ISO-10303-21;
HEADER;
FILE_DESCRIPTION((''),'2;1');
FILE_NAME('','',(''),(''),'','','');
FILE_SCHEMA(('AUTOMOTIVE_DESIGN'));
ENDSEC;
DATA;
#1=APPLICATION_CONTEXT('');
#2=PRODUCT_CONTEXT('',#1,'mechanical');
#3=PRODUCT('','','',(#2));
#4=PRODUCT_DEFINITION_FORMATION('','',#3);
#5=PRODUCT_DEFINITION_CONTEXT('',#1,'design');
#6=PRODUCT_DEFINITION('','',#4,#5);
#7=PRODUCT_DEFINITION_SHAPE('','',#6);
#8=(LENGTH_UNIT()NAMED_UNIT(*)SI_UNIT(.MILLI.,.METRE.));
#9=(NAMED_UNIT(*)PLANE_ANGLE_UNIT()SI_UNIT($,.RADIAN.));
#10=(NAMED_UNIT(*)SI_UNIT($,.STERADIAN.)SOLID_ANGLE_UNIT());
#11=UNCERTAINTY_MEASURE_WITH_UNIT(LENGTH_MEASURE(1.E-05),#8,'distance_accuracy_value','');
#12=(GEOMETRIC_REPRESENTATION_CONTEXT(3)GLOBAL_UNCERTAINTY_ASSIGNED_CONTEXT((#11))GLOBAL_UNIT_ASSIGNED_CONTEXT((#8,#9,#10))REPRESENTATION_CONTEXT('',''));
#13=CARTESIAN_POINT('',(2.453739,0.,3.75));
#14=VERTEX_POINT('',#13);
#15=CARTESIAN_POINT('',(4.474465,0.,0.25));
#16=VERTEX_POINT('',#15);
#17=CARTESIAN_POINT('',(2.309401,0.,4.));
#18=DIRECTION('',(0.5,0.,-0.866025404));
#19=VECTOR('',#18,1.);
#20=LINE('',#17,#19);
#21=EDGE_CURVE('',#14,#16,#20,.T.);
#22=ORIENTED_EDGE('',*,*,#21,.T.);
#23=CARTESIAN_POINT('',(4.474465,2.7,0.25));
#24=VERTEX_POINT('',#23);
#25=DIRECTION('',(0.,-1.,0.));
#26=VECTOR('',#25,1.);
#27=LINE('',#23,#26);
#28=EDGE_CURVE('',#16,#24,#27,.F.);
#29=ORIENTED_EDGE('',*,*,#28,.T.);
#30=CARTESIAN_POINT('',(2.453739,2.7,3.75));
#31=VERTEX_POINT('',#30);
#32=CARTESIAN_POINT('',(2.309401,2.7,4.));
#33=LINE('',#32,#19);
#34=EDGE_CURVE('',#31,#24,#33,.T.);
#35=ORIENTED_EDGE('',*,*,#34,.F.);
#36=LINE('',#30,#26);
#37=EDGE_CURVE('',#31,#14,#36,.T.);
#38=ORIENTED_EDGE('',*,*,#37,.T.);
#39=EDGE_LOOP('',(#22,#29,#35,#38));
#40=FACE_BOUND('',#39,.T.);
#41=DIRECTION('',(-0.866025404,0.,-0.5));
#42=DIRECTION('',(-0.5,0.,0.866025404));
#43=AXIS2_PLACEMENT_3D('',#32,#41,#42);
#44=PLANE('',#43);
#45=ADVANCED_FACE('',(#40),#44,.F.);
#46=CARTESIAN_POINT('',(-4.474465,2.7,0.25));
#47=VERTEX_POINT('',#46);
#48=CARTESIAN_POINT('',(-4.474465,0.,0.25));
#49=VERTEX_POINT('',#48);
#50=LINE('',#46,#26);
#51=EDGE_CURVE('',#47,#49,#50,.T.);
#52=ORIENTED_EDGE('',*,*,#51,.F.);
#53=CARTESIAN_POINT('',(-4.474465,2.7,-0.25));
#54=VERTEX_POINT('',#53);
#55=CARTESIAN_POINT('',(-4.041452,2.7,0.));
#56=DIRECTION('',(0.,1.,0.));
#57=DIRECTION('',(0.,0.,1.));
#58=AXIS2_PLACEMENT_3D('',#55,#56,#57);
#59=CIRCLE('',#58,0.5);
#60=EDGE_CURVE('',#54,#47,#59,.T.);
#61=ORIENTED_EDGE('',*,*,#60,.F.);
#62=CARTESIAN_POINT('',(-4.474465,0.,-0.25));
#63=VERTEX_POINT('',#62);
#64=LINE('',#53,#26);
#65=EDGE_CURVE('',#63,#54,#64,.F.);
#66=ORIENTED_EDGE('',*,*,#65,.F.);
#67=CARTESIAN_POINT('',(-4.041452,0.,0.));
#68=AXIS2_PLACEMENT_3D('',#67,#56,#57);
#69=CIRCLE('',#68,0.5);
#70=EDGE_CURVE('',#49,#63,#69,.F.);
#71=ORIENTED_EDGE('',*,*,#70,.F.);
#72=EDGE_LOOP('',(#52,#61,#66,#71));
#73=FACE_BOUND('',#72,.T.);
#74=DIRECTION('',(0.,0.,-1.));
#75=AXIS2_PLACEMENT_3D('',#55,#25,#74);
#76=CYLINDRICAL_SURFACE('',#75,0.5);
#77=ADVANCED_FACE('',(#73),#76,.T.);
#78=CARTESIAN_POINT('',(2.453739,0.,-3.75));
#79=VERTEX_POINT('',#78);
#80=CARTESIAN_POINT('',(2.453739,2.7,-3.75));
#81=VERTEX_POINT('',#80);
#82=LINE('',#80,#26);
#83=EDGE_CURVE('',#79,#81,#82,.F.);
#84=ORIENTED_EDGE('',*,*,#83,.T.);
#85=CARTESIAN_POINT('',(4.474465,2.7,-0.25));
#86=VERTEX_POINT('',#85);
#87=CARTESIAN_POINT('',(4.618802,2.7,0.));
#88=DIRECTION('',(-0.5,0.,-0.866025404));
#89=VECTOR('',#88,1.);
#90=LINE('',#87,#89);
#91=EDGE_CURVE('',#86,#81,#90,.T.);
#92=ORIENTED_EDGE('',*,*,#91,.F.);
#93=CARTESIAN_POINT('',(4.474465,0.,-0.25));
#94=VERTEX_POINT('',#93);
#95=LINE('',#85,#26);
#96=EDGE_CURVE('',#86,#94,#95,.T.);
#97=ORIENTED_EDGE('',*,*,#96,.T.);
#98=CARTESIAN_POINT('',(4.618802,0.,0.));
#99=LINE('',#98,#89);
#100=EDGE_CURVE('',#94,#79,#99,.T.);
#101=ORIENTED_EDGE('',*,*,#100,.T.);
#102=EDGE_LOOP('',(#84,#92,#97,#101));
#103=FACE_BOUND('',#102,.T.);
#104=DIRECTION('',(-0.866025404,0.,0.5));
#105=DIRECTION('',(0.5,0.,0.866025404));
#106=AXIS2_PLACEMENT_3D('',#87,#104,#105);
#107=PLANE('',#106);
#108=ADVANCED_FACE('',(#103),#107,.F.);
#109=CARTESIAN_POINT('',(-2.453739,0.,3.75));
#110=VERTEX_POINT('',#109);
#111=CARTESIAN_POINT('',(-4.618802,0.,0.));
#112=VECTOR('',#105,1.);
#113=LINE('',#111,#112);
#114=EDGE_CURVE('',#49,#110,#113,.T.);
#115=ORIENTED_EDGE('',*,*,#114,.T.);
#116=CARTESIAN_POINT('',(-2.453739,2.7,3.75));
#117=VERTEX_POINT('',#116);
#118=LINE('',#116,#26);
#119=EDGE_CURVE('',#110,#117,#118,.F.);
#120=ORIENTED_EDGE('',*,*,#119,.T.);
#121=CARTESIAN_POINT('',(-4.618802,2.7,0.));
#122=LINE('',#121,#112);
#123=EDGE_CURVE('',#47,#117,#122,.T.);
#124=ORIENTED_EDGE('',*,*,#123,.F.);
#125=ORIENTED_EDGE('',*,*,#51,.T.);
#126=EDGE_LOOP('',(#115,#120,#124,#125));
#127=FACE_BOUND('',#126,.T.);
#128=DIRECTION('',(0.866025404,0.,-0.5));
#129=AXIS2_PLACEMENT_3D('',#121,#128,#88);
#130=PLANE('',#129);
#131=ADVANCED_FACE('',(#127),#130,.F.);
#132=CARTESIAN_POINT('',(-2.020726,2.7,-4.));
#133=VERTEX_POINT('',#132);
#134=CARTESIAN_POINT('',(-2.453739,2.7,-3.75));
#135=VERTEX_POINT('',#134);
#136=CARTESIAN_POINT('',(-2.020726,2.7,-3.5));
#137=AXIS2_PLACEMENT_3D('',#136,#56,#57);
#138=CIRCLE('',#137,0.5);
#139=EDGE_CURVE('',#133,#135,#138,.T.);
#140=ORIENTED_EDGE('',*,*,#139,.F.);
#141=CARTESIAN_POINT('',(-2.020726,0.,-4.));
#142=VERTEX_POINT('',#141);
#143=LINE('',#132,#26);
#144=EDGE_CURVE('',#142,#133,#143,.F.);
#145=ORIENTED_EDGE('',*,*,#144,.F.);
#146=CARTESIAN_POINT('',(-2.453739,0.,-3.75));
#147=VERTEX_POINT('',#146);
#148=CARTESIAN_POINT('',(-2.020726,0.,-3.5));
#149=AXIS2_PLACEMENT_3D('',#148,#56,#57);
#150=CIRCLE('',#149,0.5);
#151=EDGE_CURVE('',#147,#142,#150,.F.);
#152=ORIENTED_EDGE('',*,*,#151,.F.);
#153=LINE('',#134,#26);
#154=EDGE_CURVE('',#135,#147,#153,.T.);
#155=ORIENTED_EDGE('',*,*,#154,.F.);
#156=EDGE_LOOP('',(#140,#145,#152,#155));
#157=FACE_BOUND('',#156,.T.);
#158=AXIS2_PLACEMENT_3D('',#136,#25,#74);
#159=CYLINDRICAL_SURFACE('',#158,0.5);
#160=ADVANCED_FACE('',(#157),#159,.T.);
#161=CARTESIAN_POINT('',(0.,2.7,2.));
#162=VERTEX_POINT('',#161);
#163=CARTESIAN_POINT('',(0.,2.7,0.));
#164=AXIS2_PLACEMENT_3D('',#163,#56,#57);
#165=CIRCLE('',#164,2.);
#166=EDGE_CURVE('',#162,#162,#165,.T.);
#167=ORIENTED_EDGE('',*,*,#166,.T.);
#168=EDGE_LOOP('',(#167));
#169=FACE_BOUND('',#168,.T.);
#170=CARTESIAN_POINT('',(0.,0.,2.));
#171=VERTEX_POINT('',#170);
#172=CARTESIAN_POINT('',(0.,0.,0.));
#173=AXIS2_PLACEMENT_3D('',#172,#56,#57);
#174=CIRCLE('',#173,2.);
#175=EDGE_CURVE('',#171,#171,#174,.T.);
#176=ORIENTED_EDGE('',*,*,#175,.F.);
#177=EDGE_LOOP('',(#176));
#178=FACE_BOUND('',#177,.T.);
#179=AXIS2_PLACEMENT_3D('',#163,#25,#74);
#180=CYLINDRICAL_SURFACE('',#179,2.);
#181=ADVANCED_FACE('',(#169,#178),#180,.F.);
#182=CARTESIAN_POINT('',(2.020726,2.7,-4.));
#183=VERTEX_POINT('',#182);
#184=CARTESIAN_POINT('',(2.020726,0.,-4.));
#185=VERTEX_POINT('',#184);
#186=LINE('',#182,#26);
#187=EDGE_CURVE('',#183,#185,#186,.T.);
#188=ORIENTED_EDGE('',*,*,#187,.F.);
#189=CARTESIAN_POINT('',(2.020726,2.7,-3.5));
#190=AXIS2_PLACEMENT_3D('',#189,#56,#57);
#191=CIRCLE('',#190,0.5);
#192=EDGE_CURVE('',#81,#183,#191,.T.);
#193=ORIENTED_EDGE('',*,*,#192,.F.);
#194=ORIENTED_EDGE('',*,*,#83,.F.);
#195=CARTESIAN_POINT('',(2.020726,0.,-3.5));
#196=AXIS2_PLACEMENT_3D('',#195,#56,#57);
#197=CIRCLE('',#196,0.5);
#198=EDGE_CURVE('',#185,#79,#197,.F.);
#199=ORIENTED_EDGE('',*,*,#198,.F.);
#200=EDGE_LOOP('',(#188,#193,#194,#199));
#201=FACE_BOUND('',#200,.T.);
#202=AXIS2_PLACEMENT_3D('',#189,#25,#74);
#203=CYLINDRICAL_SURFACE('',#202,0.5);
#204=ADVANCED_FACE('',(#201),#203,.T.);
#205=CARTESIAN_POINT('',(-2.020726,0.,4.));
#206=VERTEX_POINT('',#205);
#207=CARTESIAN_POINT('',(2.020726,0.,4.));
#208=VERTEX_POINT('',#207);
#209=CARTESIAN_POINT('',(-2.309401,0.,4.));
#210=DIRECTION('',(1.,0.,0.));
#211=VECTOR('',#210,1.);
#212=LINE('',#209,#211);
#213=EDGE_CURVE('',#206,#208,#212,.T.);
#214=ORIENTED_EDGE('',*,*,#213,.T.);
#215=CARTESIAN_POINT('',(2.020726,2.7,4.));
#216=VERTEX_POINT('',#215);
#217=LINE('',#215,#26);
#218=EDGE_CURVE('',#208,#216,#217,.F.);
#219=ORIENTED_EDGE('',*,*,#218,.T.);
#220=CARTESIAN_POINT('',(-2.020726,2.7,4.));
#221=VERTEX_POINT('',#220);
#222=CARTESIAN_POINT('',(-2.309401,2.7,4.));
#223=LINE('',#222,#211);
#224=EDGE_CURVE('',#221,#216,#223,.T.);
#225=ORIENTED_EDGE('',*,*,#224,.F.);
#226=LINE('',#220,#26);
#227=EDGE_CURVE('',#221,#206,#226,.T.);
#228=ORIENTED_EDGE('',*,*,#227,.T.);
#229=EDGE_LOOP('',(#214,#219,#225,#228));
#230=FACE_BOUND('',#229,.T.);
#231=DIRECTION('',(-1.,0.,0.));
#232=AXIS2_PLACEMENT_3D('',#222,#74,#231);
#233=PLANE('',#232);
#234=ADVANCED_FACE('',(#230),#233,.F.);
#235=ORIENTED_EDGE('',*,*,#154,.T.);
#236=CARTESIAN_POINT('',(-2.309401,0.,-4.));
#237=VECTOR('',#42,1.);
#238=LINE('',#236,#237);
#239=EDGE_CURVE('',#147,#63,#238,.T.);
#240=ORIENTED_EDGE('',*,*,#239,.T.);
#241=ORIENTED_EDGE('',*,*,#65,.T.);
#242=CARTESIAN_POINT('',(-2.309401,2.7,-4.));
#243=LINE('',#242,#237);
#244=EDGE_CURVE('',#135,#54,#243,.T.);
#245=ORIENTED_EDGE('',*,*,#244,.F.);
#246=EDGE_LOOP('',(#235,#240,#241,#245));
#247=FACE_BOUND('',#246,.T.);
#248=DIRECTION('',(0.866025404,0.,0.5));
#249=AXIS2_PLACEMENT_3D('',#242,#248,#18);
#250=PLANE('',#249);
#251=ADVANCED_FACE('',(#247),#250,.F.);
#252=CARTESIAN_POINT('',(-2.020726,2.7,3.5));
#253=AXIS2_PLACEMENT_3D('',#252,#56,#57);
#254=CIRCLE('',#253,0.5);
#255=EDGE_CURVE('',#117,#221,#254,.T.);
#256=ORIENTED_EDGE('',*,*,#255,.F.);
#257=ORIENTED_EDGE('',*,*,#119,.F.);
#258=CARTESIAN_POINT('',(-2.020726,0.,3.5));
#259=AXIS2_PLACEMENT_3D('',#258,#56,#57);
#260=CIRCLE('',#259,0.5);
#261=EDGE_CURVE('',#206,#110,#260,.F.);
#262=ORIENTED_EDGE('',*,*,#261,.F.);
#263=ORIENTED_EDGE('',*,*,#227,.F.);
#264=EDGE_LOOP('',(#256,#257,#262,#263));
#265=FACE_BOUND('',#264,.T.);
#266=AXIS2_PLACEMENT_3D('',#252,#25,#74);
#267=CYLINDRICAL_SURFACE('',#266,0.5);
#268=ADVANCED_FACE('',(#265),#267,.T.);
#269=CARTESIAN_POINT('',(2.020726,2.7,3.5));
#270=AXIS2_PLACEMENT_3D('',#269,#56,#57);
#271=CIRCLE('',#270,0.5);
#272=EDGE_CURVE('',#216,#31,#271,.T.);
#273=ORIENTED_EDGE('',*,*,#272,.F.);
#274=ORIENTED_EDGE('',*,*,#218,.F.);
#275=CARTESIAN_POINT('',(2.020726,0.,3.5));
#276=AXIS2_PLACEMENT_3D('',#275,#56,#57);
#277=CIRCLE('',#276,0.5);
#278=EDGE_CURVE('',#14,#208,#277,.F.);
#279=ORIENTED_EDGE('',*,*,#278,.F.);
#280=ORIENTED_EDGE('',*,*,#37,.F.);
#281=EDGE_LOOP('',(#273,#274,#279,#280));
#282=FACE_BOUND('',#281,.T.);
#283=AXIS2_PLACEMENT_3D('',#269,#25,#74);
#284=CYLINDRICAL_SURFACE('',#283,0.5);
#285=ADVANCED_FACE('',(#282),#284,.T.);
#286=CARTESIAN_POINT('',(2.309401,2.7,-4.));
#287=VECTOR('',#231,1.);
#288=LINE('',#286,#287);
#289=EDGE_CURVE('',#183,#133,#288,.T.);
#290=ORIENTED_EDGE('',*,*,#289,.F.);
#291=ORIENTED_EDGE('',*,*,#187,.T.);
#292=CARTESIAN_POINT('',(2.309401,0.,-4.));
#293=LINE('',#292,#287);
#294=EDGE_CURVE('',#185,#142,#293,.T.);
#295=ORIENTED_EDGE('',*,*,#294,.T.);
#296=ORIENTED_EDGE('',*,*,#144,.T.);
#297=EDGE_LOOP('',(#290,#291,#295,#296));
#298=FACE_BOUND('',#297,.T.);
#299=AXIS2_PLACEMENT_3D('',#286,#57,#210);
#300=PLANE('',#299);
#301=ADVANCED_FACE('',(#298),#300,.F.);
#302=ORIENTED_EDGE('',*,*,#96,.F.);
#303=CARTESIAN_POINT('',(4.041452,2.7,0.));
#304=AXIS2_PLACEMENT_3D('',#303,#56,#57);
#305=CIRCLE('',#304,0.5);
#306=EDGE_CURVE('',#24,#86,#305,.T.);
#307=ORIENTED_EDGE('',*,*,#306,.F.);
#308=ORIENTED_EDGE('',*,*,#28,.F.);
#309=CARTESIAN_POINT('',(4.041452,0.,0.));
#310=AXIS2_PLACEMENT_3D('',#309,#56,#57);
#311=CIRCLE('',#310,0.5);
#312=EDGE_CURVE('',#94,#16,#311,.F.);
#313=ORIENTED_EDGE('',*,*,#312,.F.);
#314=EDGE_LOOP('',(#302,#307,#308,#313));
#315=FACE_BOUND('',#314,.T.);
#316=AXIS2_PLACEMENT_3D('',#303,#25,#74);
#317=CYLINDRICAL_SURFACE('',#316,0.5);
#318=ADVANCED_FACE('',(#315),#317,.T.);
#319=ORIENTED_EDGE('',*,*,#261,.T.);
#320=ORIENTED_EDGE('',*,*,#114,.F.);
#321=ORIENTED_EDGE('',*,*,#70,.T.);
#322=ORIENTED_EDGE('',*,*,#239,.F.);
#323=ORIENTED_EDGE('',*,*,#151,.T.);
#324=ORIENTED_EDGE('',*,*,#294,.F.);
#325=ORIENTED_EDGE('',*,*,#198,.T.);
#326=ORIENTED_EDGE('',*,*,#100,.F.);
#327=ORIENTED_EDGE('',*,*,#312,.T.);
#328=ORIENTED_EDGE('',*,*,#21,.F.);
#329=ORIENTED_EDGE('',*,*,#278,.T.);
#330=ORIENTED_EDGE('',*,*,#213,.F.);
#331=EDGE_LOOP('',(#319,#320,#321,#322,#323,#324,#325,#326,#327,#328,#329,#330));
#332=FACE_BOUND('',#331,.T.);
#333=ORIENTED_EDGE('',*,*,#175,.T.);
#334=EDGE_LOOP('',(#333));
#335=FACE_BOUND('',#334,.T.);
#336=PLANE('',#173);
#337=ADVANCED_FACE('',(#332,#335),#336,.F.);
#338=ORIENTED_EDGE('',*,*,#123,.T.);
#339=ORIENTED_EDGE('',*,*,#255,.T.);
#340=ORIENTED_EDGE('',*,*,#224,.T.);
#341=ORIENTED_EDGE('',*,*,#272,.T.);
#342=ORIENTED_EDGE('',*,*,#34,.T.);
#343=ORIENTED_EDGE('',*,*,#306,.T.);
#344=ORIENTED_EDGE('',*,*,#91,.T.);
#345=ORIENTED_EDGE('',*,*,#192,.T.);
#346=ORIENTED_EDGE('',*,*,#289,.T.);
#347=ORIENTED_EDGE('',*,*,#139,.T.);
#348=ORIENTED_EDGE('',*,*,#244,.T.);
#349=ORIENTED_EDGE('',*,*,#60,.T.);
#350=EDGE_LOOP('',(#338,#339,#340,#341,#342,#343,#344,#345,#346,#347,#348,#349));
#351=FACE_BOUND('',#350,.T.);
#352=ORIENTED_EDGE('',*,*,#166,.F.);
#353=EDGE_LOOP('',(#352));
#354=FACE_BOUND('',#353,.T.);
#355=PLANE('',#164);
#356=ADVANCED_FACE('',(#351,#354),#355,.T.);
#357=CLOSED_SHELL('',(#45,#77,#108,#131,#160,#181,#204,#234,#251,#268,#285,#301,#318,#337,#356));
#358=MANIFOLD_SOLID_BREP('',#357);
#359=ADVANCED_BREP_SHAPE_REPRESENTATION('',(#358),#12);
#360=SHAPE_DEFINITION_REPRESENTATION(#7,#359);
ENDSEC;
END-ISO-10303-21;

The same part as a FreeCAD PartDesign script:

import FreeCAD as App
import Part
import Sketcher
Q = App.Units.Quantity


def edges_at(feature, points):
    """Names of the edges that pass closest to the given points."""
    edges = feature.Shape.Edges
    near = lambda p: min(range(len(edges)), key=lambda i: edges[i].distToShape(Part.Vertex(*p))[0])
    return sorted({f"Edge{near(p) + 1}" for p in points})

doc = App.newDocument("Part")
params = doc.addObject("Spreadsheet::Sheet", "Params")
for row, (alias, value) in enumerate([
    ("sketch1_diameter", "4 mm"),
    ("pad1_length", "2.7 mm"),
    ("fillet_radius", "0.5 mm"),
], start=1):
    params.set(f"A{row}", alias)
    params.set(f"B{row}", "=" + value)
    params.setAlias(f"B{row}", alias)

body = doc.addObject("PartDesign::Body", "Body")

# Sketch on XZ plane
sketch1 = doc.addObject("Sketcher::SketchObject", "Sketch")
body.addObject(sketch1)
sketch1.AttachmentSupport = (doc.XZ_Plane, [""])
sketch1.MapMode = "FlatFace"
sketch1.addGeometry([
    Part.LineSegment(App.Vector(4.6, 0, 0), App.Vector(2.3, -4, 0)),  # 0
    Part.LineSegment(App.Vector(2.3, -4, 0), App.Vector(-2.3, -4, 0)),  # 1
    Part.LineSegment(App.Vector(-2.3, -4, 0), App.Vector(-4.6, 0, 0)),  # 2
    Part.LineSegment(App.Vector(-4.6, 0, 0), App.Vector(-2.3, 4, 0)),  # 3
    Part.LineSegment(App.Vector(-2.3, 4, 0), App.Vector(2.3, 4, 0)),  # 4
    Part.LineSegment(App.Vector(2.3, 4, 0), App.Vector(4.6, 0, 0)),  # 5
    Part.Circle(App.Vector(0, 0, 0), App.Vector(0, 0, 1), 2),  # 6
], False)
sketch1.addConstraint([
    Sketcher.Constraint("Coincident", 0, 2, 1, 1),
    Sketcher.Constraint("Coincident", 1, 2, 2, 1),
    Sketcher.Constraint("Coincident", 2, 2, 3, 1),
    Sketcher.Constraint("Coincident", 3, 2, 4, 1),
    Sketcher.Constraint("Coincident", 4, 2, 5, 1),
    Sketcher.Constraint("Coincident", 5, 2, 0, 1),
    Sketcher.Constraint("Horizontal", 1),
    Sketcher.Constraint("Horizontal", 4),
    Sketcher.Constraint("Coincident", 6, 3, -1, 1),
    Sketcher.Constraint("Symmetric", 0, 2, 3, 2, -1, 1),
    Sketcher.Constraint("Symmetric", 2, 2, 5, 2, -1, 1),
    Sketcher.Constraint("PointOnObject", 2, 2, -1),
    Sketcher.Constraint("Parallel", 2, 5),
    Sketcher.Constraint("Vertical", 1, 2, 3, 2),
    Sketcher.Constraint("Diameter", 6, 4.0),
    Sketcher.Constraint("Angle", 0, Q("-120 deg")),
    Sketcher.Constraint("DistanceY", 0, 2, -1, 1, 4.0),
    Sketcher.Constraint("DistanceX", -1, 1, 0, 2, 2.309401),
])
sketch1.setExpression("Constraints[14]", "Params.sketch1_diameter")
pad1 = doc.addObject("PartDesign::Pad", "Pad")
body.addObject(pad1)
pad1.Profile = sketch1
pad1.setExpression("Length", "Params.pad1_length")
pad1.Reversed = True
doc.recompute()

fillet = doc.addObject("PartDesign::Fillet", "Fillet")
body.addObject(fillet)
fillet.Base = (pad1, edges_at(pad1, [
    (2.309, 1.35, 4),
    (-2.309, 1.35, 4),
    (-4.619, 1.35, 0),
    (-2.309, 1.35, -4),
    (2.309, 1.35, -4),
    (4.619, 1.35, 0),
]))
fillet.setExpression("Radius", "Params.fillet_radius")

doc.recompute()
